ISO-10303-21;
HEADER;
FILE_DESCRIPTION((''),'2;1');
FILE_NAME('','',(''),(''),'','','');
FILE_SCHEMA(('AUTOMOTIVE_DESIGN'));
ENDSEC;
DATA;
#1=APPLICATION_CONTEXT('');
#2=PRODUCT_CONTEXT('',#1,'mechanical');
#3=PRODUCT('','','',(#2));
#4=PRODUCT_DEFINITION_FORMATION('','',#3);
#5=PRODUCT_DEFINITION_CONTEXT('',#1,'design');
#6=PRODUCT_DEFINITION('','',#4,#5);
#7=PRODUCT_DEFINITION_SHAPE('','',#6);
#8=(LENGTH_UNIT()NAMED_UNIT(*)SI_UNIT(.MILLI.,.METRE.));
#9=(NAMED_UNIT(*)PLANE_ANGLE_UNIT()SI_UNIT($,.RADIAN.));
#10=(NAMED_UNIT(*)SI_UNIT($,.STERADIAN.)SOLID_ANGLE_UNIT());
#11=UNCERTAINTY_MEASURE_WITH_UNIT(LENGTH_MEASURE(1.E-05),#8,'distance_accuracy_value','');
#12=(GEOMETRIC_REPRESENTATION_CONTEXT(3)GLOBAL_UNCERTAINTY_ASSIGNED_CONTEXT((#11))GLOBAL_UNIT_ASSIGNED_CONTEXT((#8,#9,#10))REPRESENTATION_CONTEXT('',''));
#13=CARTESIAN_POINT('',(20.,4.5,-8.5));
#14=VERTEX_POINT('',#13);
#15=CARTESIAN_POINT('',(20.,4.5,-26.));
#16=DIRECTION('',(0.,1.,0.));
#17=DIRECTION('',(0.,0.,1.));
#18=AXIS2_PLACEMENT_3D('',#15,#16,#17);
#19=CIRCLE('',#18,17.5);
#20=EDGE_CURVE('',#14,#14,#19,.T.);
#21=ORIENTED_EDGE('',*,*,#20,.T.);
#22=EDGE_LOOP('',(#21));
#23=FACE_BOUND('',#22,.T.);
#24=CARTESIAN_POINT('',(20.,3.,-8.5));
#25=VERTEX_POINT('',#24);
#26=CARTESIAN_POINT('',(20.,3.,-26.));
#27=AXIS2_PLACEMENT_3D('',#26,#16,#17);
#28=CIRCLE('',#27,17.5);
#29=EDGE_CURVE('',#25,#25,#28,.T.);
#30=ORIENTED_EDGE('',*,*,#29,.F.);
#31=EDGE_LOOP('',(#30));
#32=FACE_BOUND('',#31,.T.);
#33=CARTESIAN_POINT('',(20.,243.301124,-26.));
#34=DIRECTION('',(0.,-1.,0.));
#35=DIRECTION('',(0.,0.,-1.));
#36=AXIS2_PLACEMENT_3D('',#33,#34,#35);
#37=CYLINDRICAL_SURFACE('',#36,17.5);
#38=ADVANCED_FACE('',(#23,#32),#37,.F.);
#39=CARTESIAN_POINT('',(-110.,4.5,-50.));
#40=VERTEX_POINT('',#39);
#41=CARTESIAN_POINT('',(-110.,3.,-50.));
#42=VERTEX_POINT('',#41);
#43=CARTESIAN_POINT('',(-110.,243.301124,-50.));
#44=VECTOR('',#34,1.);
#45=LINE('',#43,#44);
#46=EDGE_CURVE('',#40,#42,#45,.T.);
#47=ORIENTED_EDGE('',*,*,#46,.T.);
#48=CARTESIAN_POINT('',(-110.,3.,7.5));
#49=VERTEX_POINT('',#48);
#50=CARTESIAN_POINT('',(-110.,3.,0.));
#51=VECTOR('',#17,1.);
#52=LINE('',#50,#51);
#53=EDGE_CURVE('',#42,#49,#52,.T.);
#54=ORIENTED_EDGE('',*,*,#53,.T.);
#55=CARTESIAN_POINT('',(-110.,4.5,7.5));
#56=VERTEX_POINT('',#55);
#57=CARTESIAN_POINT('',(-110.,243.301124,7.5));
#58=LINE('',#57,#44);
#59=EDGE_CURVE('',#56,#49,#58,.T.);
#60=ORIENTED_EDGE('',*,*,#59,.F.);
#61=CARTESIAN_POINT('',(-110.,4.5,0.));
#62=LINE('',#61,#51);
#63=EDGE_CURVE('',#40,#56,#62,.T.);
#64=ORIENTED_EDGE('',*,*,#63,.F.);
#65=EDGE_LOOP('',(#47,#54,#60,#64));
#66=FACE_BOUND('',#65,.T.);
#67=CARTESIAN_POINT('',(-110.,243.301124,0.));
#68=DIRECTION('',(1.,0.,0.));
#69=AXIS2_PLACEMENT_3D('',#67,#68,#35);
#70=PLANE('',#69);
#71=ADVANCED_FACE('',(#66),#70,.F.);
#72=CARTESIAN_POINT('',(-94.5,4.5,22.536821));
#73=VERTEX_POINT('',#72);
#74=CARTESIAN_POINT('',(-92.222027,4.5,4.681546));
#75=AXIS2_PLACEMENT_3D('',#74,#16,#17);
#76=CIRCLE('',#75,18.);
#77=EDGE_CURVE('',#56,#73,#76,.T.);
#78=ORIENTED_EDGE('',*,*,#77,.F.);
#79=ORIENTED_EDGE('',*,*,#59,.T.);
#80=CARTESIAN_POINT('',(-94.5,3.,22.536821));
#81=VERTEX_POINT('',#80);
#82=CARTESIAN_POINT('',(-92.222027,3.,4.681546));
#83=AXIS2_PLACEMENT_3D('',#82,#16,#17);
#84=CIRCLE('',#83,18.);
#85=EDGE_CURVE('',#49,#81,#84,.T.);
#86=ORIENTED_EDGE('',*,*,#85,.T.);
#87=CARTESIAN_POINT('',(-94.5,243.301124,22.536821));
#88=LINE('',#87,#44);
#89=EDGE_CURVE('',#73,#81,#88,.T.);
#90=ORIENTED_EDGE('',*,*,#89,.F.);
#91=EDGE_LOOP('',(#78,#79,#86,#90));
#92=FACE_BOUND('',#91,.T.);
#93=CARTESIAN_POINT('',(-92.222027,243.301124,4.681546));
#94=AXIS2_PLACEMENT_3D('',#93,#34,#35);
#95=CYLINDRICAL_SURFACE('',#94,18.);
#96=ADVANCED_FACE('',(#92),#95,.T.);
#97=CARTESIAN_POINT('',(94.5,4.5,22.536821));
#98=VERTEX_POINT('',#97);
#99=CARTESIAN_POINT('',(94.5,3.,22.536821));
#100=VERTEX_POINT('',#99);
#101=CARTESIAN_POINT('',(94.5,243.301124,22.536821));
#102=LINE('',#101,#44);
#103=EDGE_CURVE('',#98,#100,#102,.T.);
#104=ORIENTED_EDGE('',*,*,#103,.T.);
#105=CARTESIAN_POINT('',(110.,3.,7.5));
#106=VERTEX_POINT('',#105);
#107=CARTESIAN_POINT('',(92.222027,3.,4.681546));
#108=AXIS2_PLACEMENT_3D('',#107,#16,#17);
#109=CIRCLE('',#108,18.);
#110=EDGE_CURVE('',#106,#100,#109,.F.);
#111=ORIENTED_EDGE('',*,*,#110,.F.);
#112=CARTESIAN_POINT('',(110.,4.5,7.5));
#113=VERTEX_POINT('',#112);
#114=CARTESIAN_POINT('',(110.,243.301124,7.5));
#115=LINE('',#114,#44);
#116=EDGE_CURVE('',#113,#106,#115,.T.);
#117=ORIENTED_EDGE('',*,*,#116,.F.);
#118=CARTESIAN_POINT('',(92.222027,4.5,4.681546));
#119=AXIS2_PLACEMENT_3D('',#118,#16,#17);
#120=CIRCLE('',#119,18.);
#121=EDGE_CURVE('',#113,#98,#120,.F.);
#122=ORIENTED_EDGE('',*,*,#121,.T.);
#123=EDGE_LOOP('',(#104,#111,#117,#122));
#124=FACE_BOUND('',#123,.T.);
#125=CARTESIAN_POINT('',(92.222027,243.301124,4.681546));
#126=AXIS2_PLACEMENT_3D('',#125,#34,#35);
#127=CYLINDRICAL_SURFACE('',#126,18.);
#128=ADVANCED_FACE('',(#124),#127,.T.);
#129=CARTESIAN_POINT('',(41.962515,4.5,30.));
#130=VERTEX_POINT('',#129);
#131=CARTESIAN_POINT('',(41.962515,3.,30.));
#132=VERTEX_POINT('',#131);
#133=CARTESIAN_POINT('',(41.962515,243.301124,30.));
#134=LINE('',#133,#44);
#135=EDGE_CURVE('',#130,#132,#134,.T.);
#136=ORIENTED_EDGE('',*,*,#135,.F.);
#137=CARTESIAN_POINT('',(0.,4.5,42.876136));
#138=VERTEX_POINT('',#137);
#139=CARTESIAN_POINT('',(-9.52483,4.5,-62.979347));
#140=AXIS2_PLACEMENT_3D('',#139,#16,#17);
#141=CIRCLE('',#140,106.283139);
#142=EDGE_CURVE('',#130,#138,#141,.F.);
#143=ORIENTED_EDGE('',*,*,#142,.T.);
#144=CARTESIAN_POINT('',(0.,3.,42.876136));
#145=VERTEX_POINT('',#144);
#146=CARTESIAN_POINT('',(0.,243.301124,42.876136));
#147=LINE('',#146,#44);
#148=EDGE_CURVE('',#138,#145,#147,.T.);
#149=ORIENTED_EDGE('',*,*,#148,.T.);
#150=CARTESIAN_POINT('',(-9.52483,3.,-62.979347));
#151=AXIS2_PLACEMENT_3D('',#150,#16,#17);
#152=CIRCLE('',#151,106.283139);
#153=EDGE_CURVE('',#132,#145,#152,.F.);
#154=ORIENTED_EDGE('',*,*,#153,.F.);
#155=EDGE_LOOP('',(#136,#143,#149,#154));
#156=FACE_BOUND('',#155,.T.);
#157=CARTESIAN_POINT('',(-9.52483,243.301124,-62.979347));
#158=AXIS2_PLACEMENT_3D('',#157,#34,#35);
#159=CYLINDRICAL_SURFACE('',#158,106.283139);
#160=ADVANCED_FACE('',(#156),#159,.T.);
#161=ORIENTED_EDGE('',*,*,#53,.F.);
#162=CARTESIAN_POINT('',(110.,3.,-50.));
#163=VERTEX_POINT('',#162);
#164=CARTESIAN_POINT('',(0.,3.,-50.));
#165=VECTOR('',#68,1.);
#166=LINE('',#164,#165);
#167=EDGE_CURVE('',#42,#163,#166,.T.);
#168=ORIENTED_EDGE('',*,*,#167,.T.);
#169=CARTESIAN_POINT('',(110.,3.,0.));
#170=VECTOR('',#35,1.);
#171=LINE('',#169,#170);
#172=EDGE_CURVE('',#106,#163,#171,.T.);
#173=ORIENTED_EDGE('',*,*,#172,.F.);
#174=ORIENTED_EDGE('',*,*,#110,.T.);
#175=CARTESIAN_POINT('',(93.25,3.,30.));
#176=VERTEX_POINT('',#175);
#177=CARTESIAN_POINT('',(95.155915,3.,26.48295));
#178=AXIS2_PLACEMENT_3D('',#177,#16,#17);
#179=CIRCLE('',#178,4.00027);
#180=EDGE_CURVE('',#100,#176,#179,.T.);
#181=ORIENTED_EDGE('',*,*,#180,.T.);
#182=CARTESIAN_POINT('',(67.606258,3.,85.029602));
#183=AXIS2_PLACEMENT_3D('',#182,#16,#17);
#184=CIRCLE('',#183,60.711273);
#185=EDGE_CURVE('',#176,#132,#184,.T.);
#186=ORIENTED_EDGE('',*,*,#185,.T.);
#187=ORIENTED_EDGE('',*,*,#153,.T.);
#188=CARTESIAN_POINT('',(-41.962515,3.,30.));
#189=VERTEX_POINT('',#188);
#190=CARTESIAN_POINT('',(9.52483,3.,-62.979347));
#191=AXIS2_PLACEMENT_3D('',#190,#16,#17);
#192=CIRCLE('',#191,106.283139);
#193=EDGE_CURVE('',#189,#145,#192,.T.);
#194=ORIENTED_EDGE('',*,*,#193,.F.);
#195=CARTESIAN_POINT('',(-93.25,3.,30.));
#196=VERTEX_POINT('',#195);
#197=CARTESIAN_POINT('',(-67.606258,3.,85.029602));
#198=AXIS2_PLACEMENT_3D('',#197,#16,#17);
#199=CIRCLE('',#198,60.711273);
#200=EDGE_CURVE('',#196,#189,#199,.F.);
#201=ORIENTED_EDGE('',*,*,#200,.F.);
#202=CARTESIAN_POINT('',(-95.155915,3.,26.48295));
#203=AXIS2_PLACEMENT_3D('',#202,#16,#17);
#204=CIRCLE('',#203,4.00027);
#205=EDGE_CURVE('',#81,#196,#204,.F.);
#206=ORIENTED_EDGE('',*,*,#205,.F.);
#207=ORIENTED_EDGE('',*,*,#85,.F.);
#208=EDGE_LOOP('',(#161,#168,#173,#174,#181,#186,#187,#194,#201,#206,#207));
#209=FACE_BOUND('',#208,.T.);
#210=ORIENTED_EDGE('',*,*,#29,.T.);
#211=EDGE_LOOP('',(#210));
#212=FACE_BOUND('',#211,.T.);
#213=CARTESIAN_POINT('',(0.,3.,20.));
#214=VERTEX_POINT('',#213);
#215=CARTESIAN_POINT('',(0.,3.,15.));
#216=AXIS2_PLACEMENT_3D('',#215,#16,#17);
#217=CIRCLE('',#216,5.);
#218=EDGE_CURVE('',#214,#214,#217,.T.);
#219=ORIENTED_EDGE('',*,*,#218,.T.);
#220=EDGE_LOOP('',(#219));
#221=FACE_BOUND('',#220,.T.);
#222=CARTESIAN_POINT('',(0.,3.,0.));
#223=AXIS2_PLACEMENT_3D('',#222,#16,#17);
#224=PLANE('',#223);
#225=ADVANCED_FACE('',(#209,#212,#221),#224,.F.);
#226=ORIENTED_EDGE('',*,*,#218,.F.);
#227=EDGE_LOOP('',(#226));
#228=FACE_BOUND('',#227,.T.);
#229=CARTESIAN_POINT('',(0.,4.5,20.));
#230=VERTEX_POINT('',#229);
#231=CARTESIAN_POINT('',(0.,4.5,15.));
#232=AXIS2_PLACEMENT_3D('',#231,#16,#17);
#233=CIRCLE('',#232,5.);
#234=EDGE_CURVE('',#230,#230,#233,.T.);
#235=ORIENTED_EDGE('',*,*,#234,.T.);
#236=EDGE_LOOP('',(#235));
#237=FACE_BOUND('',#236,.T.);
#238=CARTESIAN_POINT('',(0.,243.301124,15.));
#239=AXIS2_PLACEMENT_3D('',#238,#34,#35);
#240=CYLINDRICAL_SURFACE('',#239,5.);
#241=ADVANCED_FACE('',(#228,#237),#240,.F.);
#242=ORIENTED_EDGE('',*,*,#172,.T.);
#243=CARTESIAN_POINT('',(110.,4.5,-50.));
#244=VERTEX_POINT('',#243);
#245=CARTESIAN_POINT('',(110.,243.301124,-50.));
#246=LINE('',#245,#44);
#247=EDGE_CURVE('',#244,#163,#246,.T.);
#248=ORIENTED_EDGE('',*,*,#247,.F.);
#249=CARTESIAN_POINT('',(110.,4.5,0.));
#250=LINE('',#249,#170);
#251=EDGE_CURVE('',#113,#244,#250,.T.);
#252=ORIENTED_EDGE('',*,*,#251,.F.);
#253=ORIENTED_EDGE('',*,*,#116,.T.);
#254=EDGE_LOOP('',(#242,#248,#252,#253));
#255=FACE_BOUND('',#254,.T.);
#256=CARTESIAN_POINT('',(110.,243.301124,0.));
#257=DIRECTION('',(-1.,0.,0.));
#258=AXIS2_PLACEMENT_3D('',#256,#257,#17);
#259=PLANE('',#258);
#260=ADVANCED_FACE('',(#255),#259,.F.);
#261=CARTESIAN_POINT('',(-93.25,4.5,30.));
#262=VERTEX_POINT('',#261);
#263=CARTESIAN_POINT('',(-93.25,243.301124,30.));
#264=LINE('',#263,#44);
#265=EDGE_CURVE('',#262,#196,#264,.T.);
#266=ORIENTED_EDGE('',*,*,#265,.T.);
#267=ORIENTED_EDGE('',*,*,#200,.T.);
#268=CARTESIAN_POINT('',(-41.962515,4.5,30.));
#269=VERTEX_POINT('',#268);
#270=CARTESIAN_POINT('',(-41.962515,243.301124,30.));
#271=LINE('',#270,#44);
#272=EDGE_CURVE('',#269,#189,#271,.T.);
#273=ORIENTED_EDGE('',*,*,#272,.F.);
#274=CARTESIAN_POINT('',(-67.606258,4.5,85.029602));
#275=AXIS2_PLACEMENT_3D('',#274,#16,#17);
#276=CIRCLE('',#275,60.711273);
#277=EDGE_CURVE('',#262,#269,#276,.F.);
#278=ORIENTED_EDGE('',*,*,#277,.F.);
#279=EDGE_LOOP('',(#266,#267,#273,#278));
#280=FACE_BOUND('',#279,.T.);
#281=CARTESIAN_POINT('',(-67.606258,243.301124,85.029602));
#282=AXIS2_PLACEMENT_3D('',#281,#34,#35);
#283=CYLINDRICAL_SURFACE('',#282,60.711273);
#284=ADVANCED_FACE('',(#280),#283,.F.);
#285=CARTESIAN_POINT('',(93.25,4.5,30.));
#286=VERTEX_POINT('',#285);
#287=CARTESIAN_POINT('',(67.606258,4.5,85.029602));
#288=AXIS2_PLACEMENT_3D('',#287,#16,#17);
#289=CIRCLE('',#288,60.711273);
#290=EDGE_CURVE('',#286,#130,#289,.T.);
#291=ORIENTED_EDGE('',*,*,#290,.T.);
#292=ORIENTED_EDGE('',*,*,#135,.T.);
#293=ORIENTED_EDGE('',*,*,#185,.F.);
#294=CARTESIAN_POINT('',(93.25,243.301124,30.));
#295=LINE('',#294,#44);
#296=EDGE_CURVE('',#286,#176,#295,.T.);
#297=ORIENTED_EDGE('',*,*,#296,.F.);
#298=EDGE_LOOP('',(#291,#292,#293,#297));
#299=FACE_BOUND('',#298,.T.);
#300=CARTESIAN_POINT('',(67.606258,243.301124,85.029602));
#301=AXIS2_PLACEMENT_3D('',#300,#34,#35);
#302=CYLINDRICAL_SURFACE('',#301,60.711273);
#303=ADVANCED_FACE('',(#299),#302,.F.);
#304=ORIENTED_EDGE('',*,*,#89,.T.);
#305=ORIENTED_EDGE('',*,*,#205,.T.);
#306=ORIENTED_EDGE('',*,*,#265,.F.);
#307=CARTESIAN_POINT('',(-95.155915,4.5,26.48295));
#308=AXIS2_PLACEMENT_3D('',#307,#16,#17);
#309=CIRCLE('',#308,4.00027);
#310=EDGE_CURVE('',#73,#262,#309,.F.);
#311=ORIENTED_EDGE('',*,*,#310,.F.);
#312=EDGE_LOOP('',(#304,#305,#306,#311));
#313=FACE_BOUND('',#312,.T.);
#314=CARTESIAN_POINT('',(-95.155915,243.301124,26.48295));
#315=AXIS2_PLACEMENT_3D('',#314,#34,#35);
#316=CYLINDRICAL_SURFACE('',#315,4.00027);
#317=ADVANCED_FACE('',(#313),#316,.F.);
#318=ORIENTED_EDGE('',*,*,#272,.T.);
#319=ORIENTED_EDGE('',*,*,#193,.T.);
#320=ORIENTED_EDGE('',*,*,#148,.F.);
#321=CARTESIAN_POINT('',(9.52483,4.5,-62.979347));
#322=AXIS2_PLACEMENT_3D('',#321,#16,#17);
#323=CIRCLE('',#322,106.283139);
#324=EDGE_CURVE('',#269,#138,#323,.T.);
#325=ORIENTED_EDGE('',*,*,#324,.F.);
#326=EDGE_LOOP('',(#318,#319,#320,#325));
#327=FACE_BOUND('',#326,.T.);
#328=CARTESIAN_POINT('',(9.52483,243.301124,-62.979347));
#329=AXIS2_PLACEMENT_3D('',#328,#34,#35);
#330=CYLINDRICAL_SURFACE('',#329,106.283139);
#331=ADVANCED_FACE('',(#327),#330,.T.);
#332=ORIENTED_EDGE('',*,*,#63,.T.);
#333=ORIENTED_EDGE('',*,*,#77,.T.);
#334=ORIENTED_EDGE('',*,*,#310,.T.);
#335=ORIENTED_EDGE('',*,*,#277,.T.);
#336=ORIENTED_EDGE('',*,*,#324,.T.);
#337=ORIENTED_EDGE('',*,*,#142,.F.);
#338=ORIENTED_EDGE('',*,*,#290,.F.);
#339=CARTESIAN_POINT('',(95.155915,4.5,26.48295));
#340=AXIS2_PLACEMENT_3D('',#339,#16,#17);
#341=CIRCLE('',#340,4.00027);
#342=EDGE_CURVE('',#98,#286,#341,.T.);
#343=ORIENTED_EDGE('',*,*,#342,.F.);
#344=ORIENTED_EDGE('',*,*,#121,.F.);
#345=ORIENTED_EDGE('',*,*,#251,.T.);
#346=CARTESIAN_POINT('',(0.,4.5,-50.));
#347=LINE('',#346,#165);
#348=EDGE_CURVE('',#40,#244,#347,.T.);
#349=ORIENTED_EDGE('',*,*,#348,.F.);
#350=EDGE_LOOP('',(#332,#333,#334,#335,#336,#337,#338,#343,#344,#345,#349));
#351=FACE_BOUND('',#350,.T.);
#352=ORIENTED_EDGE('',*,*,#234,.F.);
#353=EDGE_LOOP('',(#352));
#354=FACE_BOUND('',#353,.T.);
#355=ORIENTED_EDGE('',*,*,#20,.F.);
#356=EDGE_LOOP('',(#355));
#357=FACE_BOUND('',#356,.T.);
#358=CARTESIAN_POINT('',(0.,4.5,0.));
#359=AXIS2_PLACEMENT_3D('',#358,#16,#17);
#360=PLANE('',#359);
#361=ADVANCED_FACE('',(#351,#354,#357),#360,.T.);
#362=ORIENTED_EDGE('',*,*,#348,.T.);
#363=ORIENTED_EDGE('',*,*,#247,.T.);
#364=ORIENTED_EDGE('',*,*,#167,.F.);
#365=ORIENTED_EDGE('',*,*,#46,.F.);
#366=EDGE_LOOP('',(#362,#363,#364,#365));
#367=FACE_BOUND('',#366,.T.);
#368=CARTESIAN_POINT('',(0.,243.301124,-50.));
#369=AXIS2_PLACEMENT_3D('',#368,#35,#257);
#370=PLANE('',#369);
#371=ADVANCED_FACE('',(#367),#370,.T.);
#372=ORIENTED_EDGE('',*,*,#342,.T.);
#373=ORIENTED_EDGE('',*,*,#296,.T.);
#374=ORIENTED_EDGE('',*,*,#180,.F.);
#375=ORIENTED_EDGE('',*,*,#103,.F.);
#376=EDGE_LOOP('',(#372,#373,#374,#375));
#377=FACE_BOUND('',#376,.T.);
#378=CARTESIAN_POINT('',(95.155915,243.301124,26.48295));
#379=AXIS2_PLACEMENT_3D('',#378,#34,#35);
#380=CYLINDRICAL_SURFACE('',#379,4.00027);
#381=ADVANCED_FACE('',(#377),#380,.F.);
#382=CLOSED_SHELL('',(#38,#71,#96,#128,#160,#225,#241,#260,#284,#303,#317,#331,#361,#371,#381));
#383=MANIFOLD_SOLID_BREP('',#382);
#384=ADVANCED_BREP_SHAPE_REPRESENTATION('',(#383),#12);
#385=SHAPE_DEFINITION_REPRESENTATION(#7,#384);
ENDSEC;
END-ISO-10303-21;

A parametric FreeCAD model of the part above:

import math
import FreeCAD as App
import Part
import Sketcher
Q = App.Units.Quantity

doc = App.newDocument("Part")
body = doc.addObject("PartDesign::Body", "Body")

# Sketch on XZ plane
sketch1 = body.newObject("Sketcher::SketchObject", "Sketch")
sketch1.AttachmentSupport = (doc.getObject("XZ_Plane"), [""])
sketch1.MapMode = "FlatFace"
sketch1.AttachmentOffset = App.Placement(App.Vector(0, 0, -3), App.Rotation())
sketch1.addGeometry([
    Part.LineSegment(App.Vector(-110, -50, 0), App.Vector(-110, 7.5, 0)),  # 0
    Part.ArcOfCircle(Part.Circle(App.Vector(-92.222027, 4.681546, 0), App.Vector(0, 0, 1), 18), math.radians(97.270509), math.radians(170.991513)),  # 1
    Part.ArcOfCircle(Part.Circle(App.Vector(-95.155915, 26.48295, 0), App.Vector(0, 0, 1), 4.00027), math.radians(-80.562722), math.radians(61.54641)),  # 2
    Part.ArcOfCircle(Part.Circle(App.Vector(-67.606258, 85.029602, 0), App.Vector(0, 0, 1), 60.711273), math.radians(-114.985474), math.radians(-65.014526)),  # 3
    Part.ArcOfCircle(Part.Circle(App.Vector(9.52483, -62.979347, 0), App.Vector(0, 0, 1), 106.283139), math.radians(95.141603), math.radians(118.975507)),  # 4
    Part.ArcOfCircle(Part.Circle(App.Vector(-9.52483, -62.979347, 0), App.Vector(0, 0, 1), 106.283139), math.radians(61.024493), math.radians(84.858397)),  # 5
    Part.ArcOfCircle(Part.Circle(App.Vector(67.606258, 85.029602, 0), App.Vector(0, 0, 1), 60.711273), math.radians(-114.985474), math.radians(-65.014526)),  # 6
    Part.ArcOfCircle(Part.Circle(App.Vector(95.155915, 26.48295, 0), App.Vector(0, 0, 1), 4.00027), math.radians(118.45359), math.radians(260.562722)),  # 7
    Part.ArcOfCircle(Part.Circle(App.Vector(92.222027, 4.681546, 0), App.Vector(0, 0, 1), 18), math.radians(9.008487), math.radians(82.729491)),  # 8
    Part.LineSegment(App.Vector(110, 7.5, 0), App.Vector(110, -50, 0)),  # 9
    Part.LineSegment(App.Vector(110, -50, 0), App.Vector(-110, -50, 0)),  # 10
    Part.Circle(App.Vector(0, 15, 0), App.Vector(0, 0, 1), 5),  # 11
    Part.Circle(App.Vector(20, -26, 0), App.Vector(0, 0, 1), 17.5),  # 12
], False)
sketch1.addConstraint([
    Sketcher.Constraint("Coincident", 0, 2, 1, 2),
    Sketcher.Constraint("Coincident", 1, 1, 2, 1),
    Sketcher.Constraint("Coincident", 2, 2, 3, 1),
    Sketcher.Constraint("Coincident", 3, 2, 4, 2),
    Sketcher.Constraint("Coincident", 4, 1, 5, 2),
    Sketcher.Constraint("Coincident", 5, 1, 6, 1),
    Sketcher.Constraint("Coincident", 6, 2, 7, 1),
    Sketcher.Constraint("Coincident", 7, 2, 8, 2),
    Sketcher.Constraint("Coincident", 8, 1, 9, 1),
    Sketcher.Constraint("Coincident", 9, 2, 10, 1),
    Sketcher.Constraint("Coincident", 10, 2, 0, 1),
    Sketcher.Constraint("Vertical", 0),
    Sketcher.Constraint("Vertical", 9),
    Sketcher.Constraint("Horizontal", 10),
    Sketcher.Constraint("Equal", 4, 5),
    Sketcher.Constraint("Equal", 3, 6),
    Sketcher.Constraint("Equal", 2, 7),
    Sketcher.Constraint("Equal", 1, 8),
    Sketcher.Constraint("Symmetric", 4, 3, 5, 3, -2),
    Sketcher.Constraint("Symmetric", 3, 3, 6, 3, -2),
    Sketcher.Constraint("Symmetric", 2, 3, 7, 3, -2),
    Sketcher.Constraint("Symmetric", 1, 3, 8, 3, -2),
    Sketcher.Constraint("PointOnObject", 11, 3, -2),
    Sketcher.Constraint("Horizontal", 2, 2, 3, 2),
    Sketcher.Constraint("Horizontal", 0, 2, 8, 1),
    Sketcher.Constraint("Diameter", 11, Q("10 mm")),
    Sketcher.Constraint("Diameter", 12, Q("35 mm")),
    Sketcher.Constraint("Radius", 1, Q("18 mm")),
    Sketcher.Constraint("DistanceX", 10, 2, 10, 1, Q("220 mm")),
    Sketcher.Constraint("DistanceY", 0, 1, 0, 2, Q("57.5 mm")),
    Sketcher.Constraint("DistanceY", -1, 1, 11, 3, Q("15 mm")),
    Sketcher.Constraint("DistanceX", -1, 1, 12, 3, Q("20 mm")),
    Sketcher.Constraint("DistanceY", 12, 3, -1, 1, Q("26 mm")),
    Sketcher.Constraint("DistanceY", -1, 1, 2, 2, Q("30 mm")),
    Sketcher.Constraint("DistanceY", 9, 2, -1, 1, Q("50 mm")),
    Sketcher.Constraint("DistanceX", 1, 1, -1, 1, Q("94.5 mm")),
    Sketcher.Constraint("DistanceX", 2, 2, -1, 1, Q("93.25 mm")),
    Sketcher.Constraint("Radius", 2, Q("4.00027 mm")),
    Sketcher.Constraint("Radius", 4, Q("106.283139 mm")),
    Sketcher.Constraint("Radius", 3, Q("60.711273 mm")),
    Sketcher.Constraint("DistanceX", 2, 3, 3, 2, Q("53.1934 mm")),
    Sketcher.Constraint("DistanceY", -1, 1, 2, 3, Q("26.48295 mm")),
    Sketcher.Constraint("DistanceX", -1, 1, 4, 3, Q("9.52483 mm")),
])
pad1 = body.newObject("PartDesign::Pad", "Pad")
pad1.Profile = sketch1
pad1.Length = 1.5
pad1.Reversed = True

doc.recompute()
